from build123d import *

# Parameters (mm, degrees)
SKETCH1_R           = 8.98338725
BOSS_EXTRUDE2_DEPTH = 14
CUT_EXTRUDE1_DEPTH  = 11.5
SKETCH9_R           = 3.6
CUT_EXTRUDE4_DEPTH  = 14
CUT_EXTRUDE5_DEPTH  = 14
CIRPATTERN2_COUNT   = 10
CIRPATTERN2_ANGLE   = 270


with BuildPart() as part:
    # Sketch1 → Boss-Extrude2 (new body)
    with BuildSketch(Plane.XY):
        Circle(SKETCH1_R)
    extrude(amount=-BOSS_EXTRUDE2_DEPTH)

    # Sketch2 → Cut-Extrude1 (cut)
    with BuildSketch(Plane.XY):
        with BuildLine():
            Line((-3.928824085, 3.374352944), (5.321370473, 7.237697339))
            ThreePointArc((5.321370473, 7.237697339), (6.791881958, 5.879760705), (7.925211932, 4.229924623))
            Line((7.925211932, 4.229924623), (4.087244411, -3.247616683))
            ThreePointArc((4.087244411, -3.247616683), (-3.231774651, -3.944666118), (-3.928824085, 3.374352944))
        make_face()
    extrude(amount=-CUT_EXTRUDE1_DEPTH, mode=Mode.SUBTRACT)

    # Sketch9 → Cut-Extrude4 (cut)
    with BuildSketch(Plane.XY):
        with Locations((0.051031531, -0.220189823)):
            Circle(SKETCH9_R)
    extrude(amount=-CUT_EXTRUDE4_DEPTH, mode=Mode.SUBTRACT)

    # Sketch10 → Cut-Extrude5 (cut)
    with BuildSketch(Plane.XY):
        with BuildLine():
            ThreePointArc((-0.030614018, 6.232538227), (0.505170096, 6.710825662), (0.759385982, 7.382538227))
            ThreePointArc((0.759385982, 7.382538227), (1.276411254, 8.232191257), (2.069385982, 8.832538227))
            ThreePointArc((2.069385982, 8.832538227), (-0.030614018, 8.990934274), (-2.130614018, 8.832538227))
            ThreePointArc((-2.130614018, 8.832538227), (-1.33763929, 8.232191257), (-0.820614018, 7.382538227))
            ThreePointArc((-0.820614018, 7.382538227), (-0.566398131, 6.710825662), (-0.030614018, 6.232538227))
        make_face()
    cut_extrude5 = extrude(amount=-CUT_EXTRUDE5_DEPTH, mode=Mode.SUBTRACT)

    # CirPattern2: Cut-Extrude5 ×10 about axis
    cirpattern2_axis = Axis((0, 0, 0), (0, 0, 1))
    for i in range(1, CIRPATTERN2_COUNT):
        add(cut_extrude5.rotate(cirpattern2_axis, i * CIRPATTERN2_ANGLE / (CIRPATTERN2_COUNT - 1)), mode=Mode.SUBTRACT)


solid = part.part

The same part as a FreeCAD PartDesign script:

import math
import FreeCAD as App
import Part
import Sketcher
from FreeCAD import Vector
Q = App.Units.Quantity

doc = App.newDocument("Part")
body = doc.addObject("PartDesign::Body", "Body")

sketch1 = body.newObject("Sketcher::SketchObject", "Sketch")
sketch1.AttachmentSupport = (doc.getObject("XY_Plane"), [""])
sketch1.MapMode = "FlatFace"
sketch1.addGeometry(Part.Circle(Vector(0, 0, 0), Vector(0, 0, 1), 8.983387), False)
sketch1.addConstraint([
    Sketcher.Constraint("Coincident", 0, 3, -1, 1),
    Sketcher.Constraint("Diameter", 0, Q("17.966774 mm")),
])
pad1 = body.newObject("PartDesign::Pad", "Pad")
pad1.Profile = sketch1
pad1.Length = 14
pad1.Reversed = True

sketch2 = body.newObject("Sketcher::SketchObject", "Sketch001")
sketch2.AttachmentSupport = (doc.getObject("XY_Plane"), [""])
sketch2.MapMode = "FlatFace"
sketch2.addGeometry([
    Part.LineSegment(Vector(5.32137, 7.237697, 0), Vector(-3.928824, 3.374353, 0)),
    Part.ArcOfCircle(Part.Circle(Vector(0.07921, 0.063368, 0), Vector(0, 0, 1), 5.198746), math.radians(140.440332), math.radians(320.440332)),
    Part.LineSegment(Vector(4.087244, -3.247617, 0), Vector(7.925212, 4.229925, 0)),
    Part.ArcOfCircle(Part.Circle(Vector(0, 0, 0), Vector(0, 0, 1), 8.983387), math.radians(28.090185), math.radians(53.675568)),
], False)
sketch2.addConstraint([
    Sketcher.Constraint("Coincident", 0, 2, 1, 1),
    Sketcher.Constraint("Coincident", 1, 2, 2, 1),
    Sketcher.Constraint("Coincident", 2, 2, 3, 1),
    Sketcher.Constraint("Coincident", 3, 2, 0, 1),
    Sketcher.Constraint("Coincident", 3, 3, -1, 1),
    Sketcher.Constraint("Radius", 1, Q("5.198746 mm")),
    Sketcher.Constraint("Radius", 3, Q("8.983387 mm")),
    Sketcher.Constraint("DistanceX", 1, 3, 2, 2, Q("7.846002 mm")),
    Sketcher.Constraint("DistanceX", -1, 1, 1, 3, Q("0.07921 mm")),
    Sketcher.Constraint("DistanceY", -1, 1, 1, 3, Q("0.063368 mm")),
    Sketcher.Constraint("DistanceX", -1, 1, 3, 2, Q("5.32137 mm")),
    Sketcher.Constraint("DistanceX", 0, 2, 1, 2, Q("8.016068 mm")),
    Sketcher.Constraint("DistanceY", 1, 2, 2, 2, Q("7.477541 mm")),
])
pocket1 = body.newObject("PartDesign::Pocket", "Pocket")
pocket1.Profile = sketch2
pocket1.Length = 11.5

sketch3 = body.newObject("Sketcher::SketchObject", "Sketch002")
sketch3.AttachmentSupport = (doc.getObject("XY_Plane"), [""])
sketch3.MapMode = "FlatFace"
sketch3.addGeometry(Part.Circle(Vector(0.051032, -0.22019, 0), Vector(0, 0, 1), 3.6), False)
sketch3.addConstraint([
    Sketcher.Constraint("Diameter", 0, Q("7.2 mm")),
    Sketcher.Constraint("DistanceX", -1, 1, 0, 3, Q("0.051032 mm")),
    Sketcher.Constraint("DistanceY", 0, 3, -1, 1, Q("0.22019 mm")),
])
pocket2 = body.newObject("PartDesign::Pocket", "Pocket001")
pocket2.Profile = sketch3
pocket2.Length = 14

sketch4 = body.newObject("Sketcher::SketchObject", "Sketch003")
sketch4.AttachmentSupport = (doc.getObject("XY_Plane"), [""])
sketch4.MapMode = "FlatFace"
sketch4.addGeometry([
    Part.ArcOfCircle(Part.Circle(Vector(-0.739449, 7.565825, 0), Vector(0, 0, 1), 1.51), math.radians(-62.002887), math.radians(-6.971859)),
    Part.ArcOfCircle(Part.Circle(Vector(3.250186, 6.448988, 0), Vector(0, 0, 1), 2.66), math.radians(116.353604), math.radians(159.454033)),
    Part.ArcOfCircle(Part.Circle(Vector(-0.030614, -5.009066, 0), Vector(0, 0, 1), 14), math.radians(81.373073), math.radians(98.626927)),
    Part.ArcOfCircle(Part.Circle(Vector(-3.311414, 6.448988, 0), Vector(0, 0, 1), 2.66), math.radians(20.545967), math.radians(63.646396)),
    Part.ArcOfCircle(Part.Circle(Vector(0.678221, 7.565825, 0), Vector(0, 0, 1), 1.51), math.radians(-173.028141), math.radians(-117.997114)),
], False)
sketch4.addConstraint([
    Sketcher.Constraint("Coincident", 0, 2, 1, 2),
    Sketcher.Constraint("Coincident", 1, 1, 2, 1),
    Sketcher.Constraint("Coincident", 2, 2, 3, 2),
    Sketcher.Constraint("Coincident", 3, 1, 4, 1),
    Sketcher.Constraint("Coincident", 4, 2, 0, 1),
    Sketcher.Constraint("Equal", 1, 3),
    Sketcher.Constraint("Equal", 0, 4),
    Sketcher.Constraint("Horizontal", 1, 3, 3, 3),
    Sketcher.Constraint("Horizontal", 0, 3, 4, 3),
    Sketcher.Constraint("Horizontal", 1, 1, 2, 2),
    Sketcher.Constraint("Horizontal", 0, 2, 3, 1),
    Sketcher.Constraint("Radius", 2, Q("14 mm")),
    Sketcher.Constraint("Radius", 0, Q("1.51 mm")),
    Sketcher.Constraint("Radius", 1, Q("2.66 mm")),
    Sketcher.Constraint("DistanceX", 2, 2, 1, 1, Q("4.2 mm")),
    Sketcher.Constraint("DistanceX", 2, 3, 0, 2, Q("0.79 mm")),
    Sketcher.Constraint("DistanceY", 0, 2, 1, 1, Q("1.45 mm")),
    Sketcher.Constraint("DistanceY", 4, 2, 0, 2, Q("1.15 mm")),
    Sketcher.Constraint("DistanceX", 0, 3, -1, 1, Q("0.739449 mm")),
    Sketcher.Constraint("DistanceY", -1, 1, 1, 3, Q("6.448988 mm")),
])
pocket3 = body.newObject("PartDesign::Pocket", "Pocket002")
pocket3.Profile = sketch4
pocket3.Length = 14
doc.recompute()

polarpattern = body.newObject("PartDesign::PolarPattern", "PolarPattern")
polarpattern.Originals = [pocket3]
polarpattern.Axis = (doc.getObject("Z_Axis"), [""])
polarpattern.Angle = 270
polarpattern.Occurrences = 10
body.Tip = polarpattern

doc.recompute()
